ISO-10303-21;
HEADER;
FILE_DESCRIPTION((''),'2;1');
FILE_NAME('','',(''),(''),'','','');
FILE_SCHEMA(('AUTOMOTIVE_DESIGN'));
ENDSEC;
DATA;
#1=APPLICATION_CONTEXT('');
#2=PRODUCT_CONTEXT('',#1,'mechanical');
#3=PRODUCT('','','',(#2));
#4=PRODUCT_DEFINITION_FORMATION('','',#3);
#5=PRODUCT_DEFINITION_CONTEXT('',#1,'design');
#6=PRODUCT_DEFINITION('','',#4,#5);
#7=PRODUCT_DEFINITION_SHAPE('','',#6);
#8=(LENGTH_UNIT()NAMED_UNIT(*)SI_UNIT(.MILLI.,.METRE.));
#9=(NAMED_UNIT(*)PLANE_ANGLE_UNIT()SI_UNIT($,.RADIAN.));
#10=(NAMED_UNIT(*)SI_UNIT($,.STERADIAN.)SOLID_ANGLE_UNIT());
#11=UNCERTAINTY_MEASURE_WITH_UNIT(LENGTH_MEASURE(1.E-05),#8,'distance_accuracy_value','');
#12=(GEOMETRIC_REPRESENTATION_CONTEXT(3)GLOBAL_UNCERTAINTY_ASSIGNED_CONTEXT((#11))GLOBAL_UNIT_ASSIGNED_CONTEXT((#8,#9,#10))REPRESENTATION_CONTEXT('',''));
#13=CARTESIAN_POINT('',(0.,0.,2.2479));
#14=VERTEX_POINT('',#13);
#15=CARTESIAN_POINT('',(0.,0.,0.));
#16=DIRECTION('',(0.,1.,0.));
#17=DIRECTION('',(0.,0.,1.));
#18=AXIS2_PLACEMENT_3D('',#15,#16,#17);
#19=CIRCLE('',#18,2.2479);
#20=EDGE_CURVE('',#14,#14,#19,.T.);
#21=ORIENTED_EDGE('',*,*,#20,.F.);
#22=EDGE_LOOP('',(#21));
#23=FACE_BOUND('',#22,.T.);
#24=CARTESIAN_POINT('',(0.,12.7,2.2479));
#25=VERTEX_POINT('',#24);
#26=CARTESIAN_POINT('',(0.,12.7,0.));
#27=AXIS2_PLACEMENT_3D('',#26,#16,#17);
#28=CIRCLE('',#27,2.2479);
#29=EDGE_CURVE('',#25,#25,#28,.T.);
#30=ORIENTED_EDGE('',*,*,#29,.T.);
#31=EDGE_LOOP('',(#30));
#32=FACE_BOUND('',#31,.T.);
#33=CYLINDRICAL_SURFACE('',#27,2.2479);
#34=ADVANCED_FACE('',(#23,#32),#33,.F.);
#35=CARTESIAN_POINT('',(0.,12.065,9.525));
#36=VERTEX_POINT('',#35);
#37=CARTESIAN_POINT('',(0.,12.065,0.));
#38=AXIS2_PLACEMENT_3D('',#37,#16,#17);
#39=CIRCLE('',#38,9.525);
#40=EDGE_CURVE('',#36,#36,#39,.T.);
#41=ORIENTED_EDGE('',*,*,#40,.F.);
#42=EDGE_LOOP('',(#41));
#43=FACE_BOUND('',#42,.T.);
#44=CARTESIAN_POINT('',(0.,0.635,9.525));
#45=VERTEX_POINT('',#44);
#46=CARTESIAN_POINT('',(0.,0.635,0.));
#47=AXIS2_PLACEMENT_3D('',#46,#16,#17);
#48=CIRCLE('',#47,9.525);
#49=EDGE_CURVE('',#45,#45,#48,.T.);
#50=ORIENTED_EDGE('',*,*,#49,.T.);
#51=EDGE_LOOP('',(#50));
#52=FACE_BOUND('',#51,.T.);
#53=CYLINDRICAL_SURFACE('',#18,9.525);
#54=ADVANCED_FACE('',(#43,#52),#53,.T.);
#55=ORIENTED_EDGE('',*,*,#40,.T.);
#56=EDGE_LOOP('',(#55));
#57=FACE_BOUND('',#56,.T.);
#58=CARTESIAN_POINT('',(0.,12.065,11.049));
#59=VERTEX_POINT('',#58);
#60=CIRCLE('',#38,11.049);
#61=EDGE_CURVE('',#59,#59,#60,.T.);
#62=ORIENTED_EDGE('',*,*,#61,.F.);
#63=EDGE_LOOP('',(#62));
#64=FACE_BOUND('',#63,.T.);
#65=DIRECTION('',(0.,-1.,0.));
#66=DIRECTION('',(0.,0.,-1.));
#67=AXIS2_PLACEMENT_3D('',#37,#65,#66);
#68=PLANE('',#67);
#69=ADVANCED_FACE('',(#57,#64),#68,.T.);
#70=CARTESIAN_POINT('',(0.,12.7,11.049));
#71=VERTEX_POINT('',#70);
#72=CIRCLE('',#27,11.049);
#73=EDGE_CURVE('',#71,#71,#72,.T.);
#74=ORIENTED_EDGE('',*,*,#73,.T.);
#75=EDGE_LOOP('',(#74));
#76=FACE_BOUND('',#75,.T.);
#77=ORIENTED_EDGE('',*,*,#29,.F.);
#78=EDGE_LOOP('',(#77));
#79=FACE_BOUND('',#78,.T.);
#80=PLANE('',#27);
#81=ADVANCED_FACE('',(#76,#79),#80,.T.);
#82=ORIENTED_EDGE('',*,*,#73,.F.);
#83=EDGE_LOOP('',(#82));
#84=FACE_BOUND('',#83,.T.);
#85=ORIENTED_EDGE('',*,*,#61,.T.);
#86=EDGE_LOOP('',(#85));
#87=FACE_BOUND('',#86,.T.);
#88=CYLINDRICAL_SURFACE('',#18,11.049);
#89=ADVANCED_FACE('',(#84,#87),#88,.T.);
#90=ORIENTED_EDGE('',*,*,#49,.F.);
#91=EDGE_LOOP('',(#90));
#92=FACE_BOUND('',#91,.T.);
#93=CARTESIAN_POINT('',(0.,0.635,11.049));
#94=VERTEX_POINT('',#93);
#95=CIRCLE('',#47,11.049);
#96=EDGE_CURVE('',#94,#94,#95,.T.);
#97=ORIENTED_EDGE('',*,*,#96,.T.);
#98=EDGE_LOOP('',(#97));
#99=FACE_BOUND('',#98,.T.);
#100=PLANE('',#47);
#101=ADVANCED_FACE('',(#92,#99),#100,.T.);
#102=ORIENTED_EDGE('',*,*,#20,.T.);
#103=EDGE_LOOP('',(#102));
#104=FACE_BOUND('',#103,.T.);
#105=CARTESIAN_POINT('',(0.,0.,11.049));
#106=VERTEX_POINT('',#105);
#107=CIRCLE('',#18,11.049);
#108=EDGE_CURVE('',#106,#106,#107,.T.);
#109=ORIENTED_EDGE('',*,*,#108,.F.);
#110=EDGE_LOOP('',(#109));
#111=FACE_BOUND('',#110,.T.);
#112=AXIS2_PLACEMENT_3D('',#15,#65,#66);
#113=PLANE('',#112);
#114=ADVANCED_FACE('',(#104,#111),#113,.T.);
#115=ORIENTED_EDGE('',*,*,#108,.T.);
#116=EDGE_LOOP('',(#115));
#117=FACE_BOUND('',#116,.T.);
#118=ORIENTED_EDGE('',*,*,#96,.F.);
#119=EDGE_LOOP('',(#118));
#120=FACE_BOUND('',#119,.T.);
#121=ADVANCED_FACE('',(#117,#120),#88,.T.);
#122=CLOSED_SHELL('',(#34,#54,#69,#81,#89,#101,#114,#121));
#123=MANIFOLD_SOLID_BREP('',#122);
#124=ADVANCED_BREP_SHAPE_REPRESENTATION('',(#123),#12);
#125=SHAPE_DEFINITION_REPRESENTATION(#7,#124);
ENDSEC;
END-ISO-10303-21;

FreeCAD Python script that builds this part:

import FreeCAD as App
import Part
import Sketcher
from FreeCAD import Vector
Q = App.Units.Quantity

doc = App.newDocument("Part")
body = doc.addObject("PartDesign::Body", "Body")

# Sketch on XY plane
sketch1 = body.newObject("Sketcher::SketchObject", "Sketch")
sketch1.AttachmentSupport = (doc.getObject("XY_Plane"), [""])
sketch1.MapMode = "FlatFace"
sketch1.addGeometry([
    Part.LineSegment(Vector(0, 0, 0), Vector(11, 0, 0)),  # 0
    Part.LineSegment(Vector(11, 0, 0), Vector(11, 0.6, 0)),  # 1
    Part.LineSegment(Vector(11, 0.6, 0), Vector(9.5, 0.6, 0)),  # 2
    Part.LineSegment(Vector(9.5, 0.6, 0), Vector(9.5, 12.1, 0)),  # 3
    Part.LineSegment(Vector(9.5, 12.1, 0), Vector(11, 12.1, 0)),  # 4
    Part.LineSegment(Vector(11, 12.1, 0), Vector(11, 12.7, 0)),  # 5
    Part.LineSegment(Vector(11, 12.7, 0), Vector(0, 12.7, 0)),  # 6
    Part.LineSegment(Vector(0, 12.7, 0), Vector(0, 0, 0)),  # 7
], False)
sketch1.addConstraint([
    Sketcher.Constraint("Coincident", 0, 2, 1, 1),
    Sketcher.Constraint("Coincident", 1, 2, 2, 1),
    Sketcher.Constraint("Coincident", 2, 2, 3, 1),
    Sketcher.Constraint("Coincident", 3, 2, 4, 1),
    Sketcher.Constraint("Coincident", 4, 2, 5, 1),
    Sketcher.Constraint("Coincident", 5, 2, 6, 1),
    Sketcher.Constraint("Coincident", 6, 2, 7, 1),
    Sketcher.Constraint("Coincident", 7, 2, 0, 1),
    Sketcher.Constraint("Horizontal", 0),
    Sketcher.Constraint("Vertical", 1),
    Sketcher.Constraint("Horizontal", 2),
    Sketcher.Constraint("Vertical", 3),
    Sketcher.Constraint("Horizontal", 4),
    Sketcher.Constraint("Vertical", 5),
    Sketcher.Constraint("Horizontal", 6),
    Sketcher.Constraint("Vertical", 7),
    Sketcher.Constraint("Coincident", 7, 2, -1, 1),
    Sketcher.Constraint("Vertical", 1, 2, 4, 2),
    Sketcher.Constraint("Equal", 1, 5),
    Sketcher.Constraint("DistanceY", 7, 2, 7, 1, Q("0.5 in")),
    Sketcher.Constraint("DistanceX", 2, 2, 2, 1, Q("0.06 in")),
    Sketcher.Constraint("DistanceY", 3, 1, 3, 2, Q("0.45 in")),
    Sketcher.Constraint("DistanceX", 0, 1, 0, 2, Q("0.435 in")),
])
revolution = body.newObject("PartDesign::Revolution", "Revolution")
revolution.Profile = sketch1
revolution.ReferenceAxis = (sketch1, ["V_Axis"])
revolution.Angle = 360

# Sketch on XZ plane
sketch2 = body.newObject("Sketcher::SketchObject", "Sketch001")
sketch2.AttachmentSupport = (doc.getObject("XZ_Plane"), [""])
sketch2.MapMode = "FlatFace"
sketch2.AttachmentOffset = App.Placement(Vector(0, 0, -0.5 * 25.4), App.Rotation())
sketch2.addGeometry(Part.Circle(Vector(0, 0, 0), Vector(0, 0, 1), 2.2), False)
sketch2.addConstraint([
    Sketcher.Constraint("Coincident", 0, 3, -1, 1),
    Sketcher.Constraint("Diameter", 0, Q("0.177 in")),
])
doc.recompute()
hole = body.newObject("PartDesign::Hole", "Hole")
hole.Profile = sketch2
hole.ThreadType = "None"
hole.Diameter = Q("0.177 in")
hole.DepthType = "ThroughAll"
hole.Reversed = True

doc.recompute()
